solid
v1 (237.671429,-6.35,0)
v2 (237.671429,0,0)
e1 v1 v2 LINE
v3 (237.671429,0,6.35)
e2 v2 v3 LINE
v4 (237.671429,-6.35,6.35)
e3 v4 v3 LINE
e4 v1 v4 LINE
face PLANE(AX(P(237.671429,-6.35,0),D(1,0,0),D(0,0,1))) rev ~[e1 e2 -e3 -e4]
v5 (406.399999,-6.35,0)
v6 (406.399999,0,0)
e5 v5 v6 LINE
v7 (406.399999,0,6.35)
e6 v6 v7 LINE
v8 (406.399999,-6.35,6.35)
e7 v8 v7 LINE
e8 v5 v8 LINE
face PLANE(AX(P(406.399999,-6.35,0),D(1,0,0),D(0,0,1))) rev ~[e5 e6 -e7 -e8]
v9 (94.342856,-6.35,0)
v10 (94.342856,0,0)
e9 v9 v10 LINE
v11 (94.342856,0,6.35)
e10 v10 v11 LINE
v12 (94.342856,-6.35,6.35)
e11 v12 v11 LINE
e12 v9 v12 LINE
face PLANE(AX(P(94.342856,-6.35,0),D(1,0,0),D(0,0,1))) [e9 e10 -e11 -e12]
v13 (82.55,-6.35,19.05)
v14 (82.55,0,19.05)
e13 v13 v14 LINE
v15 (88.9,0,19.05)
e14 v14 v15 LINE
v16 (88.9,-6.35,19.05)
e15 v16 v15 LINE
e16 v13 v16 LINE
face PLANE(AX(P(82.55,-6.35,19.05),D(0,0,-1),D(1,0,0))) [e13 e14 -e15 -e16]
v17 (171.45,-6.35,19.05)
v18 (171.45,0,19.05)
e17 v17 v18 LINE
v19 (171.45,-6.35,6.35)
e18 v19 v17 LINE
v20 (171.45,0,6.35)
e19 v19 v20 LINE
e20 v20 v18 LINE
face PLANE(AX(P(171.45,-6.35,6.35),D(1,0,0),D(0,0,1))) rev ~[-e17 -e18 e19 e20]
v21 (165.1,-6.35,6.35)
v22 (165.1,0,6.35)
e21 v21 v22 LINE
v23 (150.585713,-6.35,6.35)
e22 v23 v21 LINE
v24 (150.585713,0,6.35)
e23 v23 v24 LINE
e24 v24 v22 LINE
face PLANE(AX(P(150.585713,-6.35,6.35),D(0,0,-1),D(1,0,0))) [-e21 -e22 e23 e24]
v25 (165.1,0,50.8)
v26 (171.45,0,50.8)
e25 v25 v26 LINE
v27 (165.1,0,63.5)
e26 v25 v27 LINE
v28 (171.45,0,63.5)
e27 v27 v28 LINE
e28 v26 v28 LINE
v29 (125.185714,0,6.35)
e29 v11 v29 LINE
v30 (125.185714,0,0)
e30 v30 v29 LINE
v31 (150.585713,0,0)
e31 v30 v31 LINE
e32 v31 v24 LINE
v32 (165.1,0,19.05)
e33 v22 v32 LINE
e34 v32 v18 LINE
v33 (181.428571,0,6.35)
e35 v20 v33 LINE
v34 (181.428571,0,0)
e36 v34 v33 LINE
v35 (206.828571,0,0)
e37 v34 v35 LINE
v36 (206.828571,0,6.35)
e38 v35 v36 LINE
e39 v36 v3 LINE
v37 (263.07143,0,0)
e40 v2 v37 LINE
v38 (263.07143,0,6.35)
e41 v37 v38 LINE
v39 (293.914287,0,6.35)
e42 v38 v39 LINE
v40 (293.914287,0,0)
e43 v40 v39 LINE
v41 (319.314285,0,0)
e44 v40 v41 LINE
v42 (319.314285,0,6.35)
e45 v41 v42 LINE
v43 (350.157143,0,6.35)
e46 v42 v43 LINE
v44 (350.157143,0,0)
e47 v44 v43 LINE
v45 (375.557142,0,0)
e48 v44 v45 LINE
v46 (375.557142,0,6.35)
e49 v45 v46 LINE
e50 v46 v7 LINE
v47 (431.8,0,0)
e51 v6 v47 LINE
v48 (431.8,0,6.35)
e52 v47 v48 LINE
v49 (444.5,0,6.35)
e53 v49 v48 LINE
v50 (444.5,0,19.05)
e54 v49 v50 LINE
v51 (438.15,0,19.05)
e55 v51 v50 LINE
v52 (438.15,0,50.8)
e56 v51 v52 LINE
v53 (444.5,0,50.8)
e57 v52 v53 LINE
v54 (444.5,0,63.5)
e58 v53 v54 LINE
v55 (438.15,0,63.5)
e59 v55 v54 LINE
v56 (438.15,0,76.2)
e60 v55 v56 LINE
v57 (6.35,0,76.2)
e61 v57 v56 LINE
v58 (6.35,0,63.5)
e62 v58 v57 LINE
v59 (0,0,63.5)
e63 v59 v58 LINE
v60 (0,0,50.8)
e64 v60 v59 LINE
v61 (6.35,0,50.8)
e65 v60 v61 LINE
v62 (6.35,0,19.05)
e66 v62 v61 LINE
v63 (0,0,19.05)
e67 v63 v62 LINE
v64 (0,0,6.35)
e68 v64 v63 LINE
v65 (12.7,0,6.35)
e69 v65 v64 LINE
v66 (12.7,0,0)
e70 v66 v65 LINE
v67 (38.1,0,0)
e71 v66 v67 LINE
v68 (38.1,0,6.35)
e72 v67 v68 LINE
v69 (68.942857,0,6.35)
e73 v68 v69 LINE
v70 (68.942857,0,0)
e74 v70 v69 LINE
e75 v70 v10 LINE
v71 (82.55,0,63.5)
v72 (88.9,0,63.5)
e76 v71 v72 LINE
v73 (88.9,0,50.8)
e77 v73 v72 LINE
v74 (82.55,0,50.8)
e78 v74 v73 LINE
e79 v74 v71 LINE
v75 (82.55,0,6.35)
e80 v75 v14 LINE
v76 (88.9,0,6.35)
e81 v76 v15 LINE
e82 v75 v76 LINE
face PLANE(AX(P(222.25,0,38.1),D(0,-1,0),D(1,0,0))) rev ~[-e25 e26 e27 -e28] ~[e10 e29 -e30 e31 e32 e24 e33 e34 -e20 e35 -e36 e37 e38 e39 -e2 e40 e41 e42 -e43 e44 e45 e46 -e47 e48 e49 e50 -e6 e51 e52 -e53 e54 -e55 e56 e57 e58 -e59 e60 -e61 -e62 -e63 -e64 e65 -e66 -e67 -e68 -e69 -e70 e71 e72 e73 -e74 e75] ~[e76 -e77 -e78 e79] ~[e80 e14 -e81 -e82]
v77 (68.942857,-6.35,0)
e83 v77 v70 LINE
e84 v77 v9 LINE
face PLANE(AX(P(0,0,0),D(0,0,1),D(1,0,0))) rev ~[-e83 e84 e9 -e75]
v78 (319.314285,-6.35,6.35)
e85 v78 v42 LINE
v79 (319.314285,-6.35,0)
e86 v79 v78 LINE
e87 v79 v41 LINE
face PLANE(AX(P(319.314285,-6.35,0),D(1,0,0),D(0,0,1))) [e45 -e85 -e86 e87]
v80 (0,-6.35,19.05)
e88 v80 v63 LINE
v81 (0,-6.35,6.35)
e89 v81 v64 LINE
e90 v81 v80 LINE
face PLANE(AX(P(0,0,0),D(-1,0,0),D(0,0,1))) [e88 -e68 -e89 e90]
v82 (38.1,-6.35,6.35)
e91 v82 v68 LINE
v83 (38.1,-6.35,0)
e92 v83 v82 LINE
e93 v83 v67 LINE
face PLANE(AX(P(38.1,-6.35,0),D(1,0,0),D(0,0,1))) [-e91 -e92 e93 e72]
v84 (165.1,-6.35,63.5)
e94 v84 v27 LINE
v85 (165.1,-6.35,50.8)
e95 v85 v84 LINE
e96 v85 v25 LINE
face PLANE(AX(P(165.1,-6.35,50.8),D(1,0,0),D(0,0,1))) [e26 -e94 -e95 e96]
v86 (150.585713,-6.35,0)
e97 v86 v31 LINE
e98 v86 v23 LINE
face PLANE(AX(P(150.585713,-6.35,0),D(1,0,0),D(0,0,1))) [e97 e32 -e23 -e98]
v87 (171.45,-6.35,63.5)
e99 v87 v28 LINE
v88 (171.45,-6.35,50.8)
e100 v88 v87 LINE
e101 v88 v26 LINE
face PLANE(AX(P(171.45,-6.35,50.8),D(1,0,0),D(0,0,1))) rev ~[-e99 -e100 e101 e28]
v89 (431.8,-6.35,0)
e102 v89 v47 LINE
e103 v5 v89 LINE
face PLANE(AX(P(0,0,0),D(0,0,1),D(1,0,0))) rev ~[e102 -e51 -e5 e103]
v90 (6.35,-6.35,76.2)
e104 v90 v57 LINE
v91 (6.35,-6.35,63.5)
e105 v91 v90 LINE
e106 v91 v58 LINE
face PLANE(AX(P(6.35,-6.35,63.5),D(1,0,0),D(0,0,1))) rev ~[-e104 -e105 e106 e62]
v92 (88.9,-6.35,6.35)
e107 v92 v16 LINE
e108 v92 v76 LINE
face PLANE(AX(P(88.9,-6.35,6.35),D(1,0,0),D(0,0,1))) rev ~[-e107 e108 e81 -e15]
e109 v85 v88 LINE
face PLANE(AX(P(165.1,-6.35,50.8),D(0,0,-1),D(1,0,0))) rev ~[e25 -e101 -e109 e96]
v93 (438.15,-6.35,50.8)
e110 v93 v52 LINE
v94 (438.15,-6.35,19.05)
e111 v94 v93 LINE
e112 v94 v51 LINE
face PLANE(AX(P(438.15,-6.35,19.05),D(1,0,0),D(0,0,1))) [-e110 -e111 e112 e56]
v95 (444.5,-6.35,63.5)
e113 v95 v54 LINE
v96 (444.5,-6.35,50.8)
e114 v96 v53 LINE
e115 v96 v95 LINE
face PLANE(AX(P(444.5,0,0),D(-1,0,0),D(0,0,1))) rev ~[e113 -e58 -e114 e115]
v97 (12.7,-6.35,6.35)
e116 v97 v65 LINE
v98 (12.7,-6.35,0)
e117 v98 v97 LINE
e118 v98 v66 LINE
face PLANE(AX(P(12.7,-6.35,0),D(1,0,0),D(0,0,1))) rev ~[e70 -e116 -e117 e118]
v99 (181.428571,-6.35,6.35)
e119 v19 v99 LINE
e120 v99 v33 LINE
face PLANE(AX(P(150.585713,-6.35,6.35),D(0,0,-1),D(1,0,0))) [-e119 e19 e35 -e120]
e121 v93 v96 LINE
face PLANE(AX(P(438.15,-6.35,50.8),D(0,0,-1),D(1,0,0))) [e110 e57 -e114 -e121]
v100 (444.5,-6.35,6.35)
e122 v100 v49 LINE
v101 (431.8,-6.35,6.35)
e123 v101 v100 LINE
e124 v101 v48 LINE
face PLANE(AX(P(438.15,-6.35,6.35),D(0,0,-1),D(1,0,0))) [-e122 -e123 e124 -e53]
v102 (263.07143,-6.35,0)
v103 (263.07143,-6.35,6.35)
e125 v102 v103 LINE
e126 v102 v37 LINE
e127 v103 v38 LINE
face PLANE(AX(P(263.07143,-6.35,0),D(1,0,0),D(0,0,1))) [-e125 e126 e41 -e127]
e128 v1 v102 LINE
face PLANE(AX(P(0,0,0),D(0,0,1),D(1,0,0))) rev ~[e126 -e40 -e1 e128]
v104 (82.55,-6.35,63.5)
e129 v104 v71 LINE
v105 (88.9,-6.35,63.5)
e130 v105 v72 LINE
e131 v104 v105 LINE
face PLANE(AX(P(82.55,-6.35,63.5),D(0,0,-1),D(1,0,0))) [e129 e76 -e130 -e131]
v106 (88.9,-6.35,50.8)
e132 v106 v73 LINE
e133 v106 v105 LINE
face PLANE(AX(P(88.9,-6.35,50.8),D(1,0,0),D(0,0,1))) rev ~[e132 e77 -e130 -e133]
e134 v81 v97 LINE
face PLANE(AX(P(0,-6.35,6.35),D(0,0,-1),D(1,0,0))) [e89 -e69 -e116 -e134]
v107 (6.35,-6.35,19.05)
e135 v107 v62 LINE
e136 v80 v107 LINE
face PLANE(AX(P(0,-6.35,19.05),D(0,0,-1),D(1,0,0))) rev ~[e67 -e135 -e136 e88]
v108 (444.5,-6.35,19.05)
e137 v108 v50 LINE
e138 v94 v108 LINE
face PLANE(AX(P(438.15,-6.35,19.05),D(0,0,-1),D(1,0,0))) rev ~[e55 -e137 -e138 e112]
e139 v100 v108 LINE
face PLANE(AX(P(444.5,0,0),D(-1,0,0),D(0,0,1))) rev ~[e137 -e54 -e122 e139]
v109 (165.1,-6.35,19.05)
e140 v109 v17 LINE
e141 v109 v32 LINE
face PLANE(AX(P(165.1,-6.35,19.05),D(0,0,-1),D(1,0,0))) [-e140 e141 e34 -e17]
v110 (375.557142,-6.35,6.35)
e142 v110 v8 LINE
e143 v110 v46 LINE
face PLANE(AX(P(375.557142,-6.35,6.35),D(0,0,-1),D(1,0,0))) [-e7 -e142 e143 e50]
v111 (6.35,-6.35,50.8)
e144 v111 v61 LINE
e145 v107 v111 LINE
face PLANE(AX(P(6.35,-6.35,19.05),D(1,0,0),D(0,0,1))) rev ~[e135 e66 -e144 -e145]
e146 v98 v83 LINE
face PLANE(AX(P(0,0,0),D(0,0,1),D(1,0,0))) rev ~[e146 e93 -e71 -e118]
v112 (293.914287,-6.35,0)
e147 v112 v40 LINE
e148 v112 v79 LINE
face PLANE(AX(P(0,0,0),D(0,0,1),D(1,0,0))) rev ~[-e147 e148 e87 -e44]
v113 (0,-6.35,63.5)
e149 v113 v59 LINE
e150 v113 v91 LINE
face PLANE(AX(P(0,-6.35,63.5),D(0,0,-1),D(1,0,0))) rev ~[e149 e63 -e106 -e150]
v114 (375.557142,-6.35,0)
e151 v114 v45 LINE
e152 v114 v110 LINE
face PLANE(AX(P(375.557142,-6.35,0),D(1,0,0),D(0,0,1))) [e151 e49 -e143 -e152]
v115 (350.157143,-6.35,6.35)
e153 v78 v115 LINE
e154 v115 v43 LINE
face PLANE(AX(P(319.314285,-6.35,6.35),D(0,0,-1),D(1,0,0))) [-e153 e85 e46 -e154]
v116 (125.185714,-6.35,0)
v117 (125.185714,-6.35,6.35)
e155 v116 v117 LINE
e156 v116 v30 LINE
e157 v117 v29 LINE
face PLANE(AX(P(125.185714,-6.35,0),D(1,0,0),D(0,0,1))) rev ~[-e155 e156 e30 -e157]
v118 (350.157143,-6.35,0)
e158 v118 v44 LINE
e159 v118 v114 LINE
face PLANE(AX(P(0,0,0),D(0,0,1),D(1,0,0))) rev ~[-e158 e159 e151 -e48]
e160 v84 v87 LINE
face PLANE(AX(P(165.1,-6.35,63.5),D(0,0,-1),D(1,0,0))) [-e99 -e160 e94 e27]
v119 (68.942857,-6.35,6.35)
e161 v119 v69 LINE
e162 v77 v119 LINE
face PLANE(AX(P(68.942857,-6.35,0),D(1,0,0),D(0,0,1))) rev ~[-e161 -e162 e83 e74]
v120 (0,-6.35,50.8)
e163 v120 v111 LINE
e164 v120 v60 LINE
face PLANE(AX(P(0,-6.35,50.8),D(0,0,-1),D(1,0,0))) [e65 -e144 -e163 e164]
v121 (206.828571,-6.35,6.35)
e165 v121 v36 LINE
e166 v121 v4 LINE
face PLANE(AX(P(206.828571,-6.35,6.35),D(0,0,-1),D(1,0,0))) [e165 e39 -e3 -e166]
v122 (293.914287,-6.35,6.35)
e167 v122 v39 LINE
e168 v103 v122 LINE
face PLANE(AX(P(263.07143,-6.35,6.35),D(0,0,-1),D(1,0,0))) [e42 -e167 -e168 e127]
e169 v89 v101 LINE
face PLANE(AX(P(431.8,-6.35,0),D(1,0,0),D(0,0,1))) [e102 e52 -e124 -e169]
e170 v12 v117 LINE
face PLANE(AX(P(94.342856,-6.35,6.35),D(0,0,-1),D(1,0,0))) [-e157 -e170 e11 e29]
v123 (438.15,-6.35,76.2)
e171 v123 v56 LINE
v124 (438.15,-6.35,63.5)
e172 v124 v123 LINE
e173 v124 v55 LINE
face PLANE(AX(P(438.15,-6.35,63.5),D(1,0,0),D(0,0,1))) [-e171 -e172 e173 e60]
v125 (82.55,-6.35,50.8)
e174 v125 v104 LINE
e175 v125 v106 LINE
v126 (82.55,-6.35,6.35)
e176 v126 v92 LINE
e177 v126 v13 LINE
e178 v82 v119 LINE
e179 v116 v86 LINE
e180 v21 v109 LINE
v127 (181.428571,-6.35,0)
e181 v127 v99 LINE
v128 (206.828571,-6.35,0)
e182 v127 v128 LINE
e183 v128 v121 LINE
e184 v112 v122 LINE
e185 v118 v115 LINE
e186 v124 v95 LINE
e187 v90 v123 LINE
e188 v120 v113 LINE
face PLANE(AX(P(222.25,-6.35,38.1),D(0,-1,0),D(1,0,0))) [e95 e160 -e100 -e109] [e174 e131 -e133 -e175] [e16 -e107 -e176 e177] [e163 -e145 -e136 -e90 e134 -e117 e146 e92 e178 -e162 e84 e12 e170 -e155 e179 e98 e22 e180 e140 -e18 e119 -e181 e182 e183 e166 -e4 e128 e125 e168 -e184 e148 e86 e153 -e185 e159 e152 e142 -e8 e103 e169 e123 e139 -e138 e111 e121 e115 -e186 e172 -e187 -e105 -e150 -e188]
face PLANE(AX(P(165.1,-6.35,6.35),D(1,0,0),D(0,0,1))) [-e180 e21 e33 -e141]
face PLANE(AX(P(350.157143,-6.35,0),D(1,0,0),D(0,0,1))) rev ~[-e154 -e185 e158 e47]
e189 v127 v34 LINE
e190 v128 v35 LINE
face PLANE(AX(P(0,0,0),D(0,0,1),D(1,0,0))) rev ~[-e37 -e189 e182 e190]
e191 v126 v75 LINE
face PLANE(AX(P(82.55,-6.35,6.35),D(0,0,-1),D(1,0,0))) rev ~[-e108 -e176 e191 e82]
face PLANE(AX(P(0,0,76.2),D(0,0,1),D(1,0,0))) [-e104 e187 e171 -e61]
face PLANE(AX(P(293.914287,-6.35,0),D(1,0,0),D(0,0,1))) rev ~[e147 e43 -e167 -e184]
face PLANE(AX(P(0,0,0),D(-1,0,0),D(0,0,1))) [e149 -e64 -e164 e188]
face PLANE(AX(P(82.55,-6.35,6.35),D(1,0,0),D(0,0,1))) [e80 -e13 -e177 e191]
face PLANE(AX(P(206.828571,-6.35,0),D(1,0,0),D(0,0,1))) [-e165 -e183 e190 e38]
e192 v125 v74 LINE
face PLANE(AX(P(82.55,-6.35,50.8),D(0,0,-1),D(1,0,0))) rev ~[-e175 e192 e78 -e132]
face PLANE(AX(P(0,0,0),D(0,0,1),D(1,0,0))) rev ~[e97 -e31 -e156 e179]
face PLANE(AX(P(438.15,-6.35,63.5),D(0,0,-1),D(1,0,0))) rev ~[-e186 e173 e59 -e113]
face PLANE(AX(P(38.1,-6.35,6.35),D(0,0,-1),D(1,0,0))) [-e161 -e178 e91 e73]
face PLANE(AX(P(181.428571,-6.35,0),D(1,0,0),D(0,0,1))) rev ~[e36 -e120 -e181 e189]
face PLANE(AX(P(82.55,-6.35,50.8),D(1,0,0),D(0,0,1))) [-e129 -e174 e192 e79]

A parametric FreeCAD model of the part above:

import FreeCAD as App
import Part
import Sketcher

V = App.Vector
Q = App.Units.Quantity

doc = App.newDocument("Part")
body = doc.addObject("PartDesign::Body", "Body")

# Sketch on XZ plane
sketch1 = doc.addObject("Sketcher::SketchObject", "Sketch")
body.addObject(sketch1)
sketch1.AttachmentSupport = (doc.XZ_Plane, [""])
sketch1.MapMode = "FlatFace"
sketch1.addGeometry(Part.LineSegment(V(0, 76.2, 0), V(0, 0, 0)), False)
sketch1.addGeometry(Part.LineSegment(V(0, 0, 0), V(444.5, 0, 0)), False)
sketch1.addGeometry(Part.LineSegment(V(444.5, 0, 0), V(444.5, 76.2, 0)), False)
sketch1.addGeometry(Part.LineSegment(V(444.5, 76.2, 0), V(0, 76.2, 0)), False)
sketch1.addConstraint(Sketcher.Constraint("Coincident", 0, 2, 1, 1))
sketch1.addConstraint(Sketcher.Constraint("Coincident", 1, 2, 2, 1))
sketch1.addConstraint(Sketcher.Constraint("Coincident", 2, 2, 3, 1))
sketch1.addConstraint(Sketcher.Constraint("Coincident", 3, 2, 0, 1))
sketch1.addConstraint(Sketcher.Constraint("Vertical", 0))
sketch1.addConstraint(Sketcher.Constraint("Horizontal", 1))
sketch1.addConstraint(Sketcher.Constraint("Vertical", 2))
sketch1.addConstraint(Sketcher.Constraint("Horizontal", 3))
sketch1.addConstraint(Sketcher.Constraint("Coincident", 0, 2, -1, 1))
sketch1.addConstraint(Sketcher.Constraint("DistanceY", 0, 2, 0, 1, Q("3 in")))
sketch1.addConstraint(Sketcher.Constraint("DistanceX", 1, 1, 1, 2, Q("17.5 in")))
pad1 = doc.addObject("PartDesign::Pad", "Pad")
body.addObject(pad1)
pad1.Profile = sketch1
pad1.Length = Q("0.25 in")

# Sketch on XZ plane
sketch2 = doc.addObject("Sketcher::SketchObject", "Sketch001")
body.addObject(sketch2)
sketch2.AttachmentSupport = (doc.XZ_Plane, [""])
sketch2.MapMode = "FlatFace"
sketch2.AttachmentOffset = App.Placement(V(0, 0, 0.25 * 25.4), App.Rotation())
sketch2.addGeometry(Part.LineSegment(V(0, 6.35, 0), V(0, 0, 0)), False)
sketch2.addGeometry(Part.LineSegment(V(0, 0, 0), V(6.35, 0, 0)), False)
sketch2.addGeometry(Part.LineSegment(V(6.35, 0, 0), V(6.35, 6.35, 0)), False)
sketch2.addGeometry(Part.LineSegment(V(6.35, 6.35, 0), V(0, 6.35, 0)), False)
sketch2.addGeometry(Part.LineSegment(V(0, 76.2, 0), V(0, 63.5, 0)), False)
sketch2.addGeometry(Part.LineSegment(V(0, 63.5, 0), V(6.35, 63.5, 0)), False)
sketch2.addGeometry(Part.LineSegment(V(6.35, 63.5, 0), V(6.35, 76.2, 0)), False)
sketch2.addGeometry(Part.LineSegment(V(6.35, 76.2, 0), V(0, 76.2, 0)), False)
sketch2.addGeometry(Part.LineSegment(V(0, 50.8, 0), V(0, 19.05, 0)), False)
sketch2.addGeometry(Part.LineSegment(V(0, 19.05, 0), V(6.35, 19.05, 0)), False)
sketch2.addGeometry(Part.LineSegment(V(6.35, 19.05, 0), V(6.35, 50.8, 0)), False)
sketch2.addGeometry(Part.LineSegment(V(6.35, 50.8, 0), V(0, 50.8, 0)), False)
sketch2.addGeometry(Part.LineSegment(V(438.15, 6.35, 0), V(438.15, 0, 0)), False)
sketch2.addGeometry(Part.LineSegment(V(438.15, 0, 0), V(444.5, 0, 0)), False)
sketch2.addGeometry(Part.LineSegment(V(444.5, 0, 0), V(444.5, 6.35, 0)), False)
sketch2.addGeometry(Part.LineSegment(V(444.5, 6.35, 0), V(438.15, 6.35, 0)), False)
sketch2.addGeometry(Part.LineSegment(V(438.15, 50.8, 0), V(438.15, 19.05, 0)), False)
sketch2.addGeometry(Part.LineSegment(V(438.15, 19.05, 0), V(444.5, 19.05, 0)), False)
sketch2.addGeometry(Part.LineSegment(V(444.5, 19.05, 0), V(444.5, 50.8, 0)), False)
sketch2.addGeometry(Part.LineSegment(V(444.5, 50.8, 0), V(438.15, 50.8, 0)), False)
sketch2.addGeometry(Part.LineSegment(V(438.15, 76.2, 0), V(438.15, 63.5, 0)), False)
sketch2.addGeometry(Part.LineSegment(V(438.15, 63.5, 0), V(444.5, 63.5, 0)), False)
sketch2.addGeometry(Part.LineSegment(V(444.5, 63.5, 0), V(444.5, 76.2, 0)), False)
sketch2.addGeometry(Part.LineSegment(V(444.5, 76.2, 0), V(438.15, 76.2, 0)), False)
sketch2.addConstraint(Sketcher.Constraint("Coincident", 0, 2, 1, 1))
sketch2.addConstraint(Sketcher.Constraint("Coincident", 1, 2, 2, 1))
sketch2.addConstraint(Sketcher.Constraint("Coincident", 2, 2, 3, 1))
sketch2.addConstraint(Sketcher.Constraint("Coincident", 3, 2, 0, 1))
sketch2.addConstraint(Sketcher.Constraint("Coincident", 4, 2, 5, 1))
sketch2.addConstraint(Sketcher.Constraint("Coincident", 5, 2, 6, 1))
sketch2.addConstraint(Sketcher.Constraint("Coincident", 6, 2, 7, 1))
sketch2.addConstraint(Sketcher.Constraint("Coincident", 7, 2, 4, 1))
sketch2.addConstraint(Sketcher.Constraint("Coincident", 8, 2, 9, 1))
sketch2.addConstraint(Sketcher.Constraint("Coincident", 9, 2, 10, 1))
sketch2.addConstraint(Sketcher.Constraint("Coincident", 10, 2, 11, 1))
sketch2.addConstraint(Sketcher.Constraint("Coincident", 11, 2, 8, 1))
sketch2.addConstraint(Sketcher.Constraint("Coincident", 12, 2, 13, 1))
sketch2.addConstraint(Sketcher.Constraint("Coincident", 13, 2, 14, 1))
sketch2.addConstraint(Sketcher.Constraint("Coincident", 14, 2, 15, 1))
sketch2.addConstraint(Sketcher.Constraint("Coincident", 15, 2, 12, 1))
sketch2.addConstraint(Sketcher.Constraint("Coincident", 16, 2, 17, 1))
sketch2.addConstraint(Sketcher.Constraint("Coincident", 17, 2, 18, 1))
sketch2.addConstraint(Sketcher.Constraint("Coincident", 18, 2, 19, 1))
sketch2.addConstraint(Sketcher.Constraint("Coincident", 19, 2, 16, 1))
sketch2.addConstraint(Sketcher.Constraint("Coincident", 20, 2, 21, 1))
sketch2.addConstraint(Sketcher.Constraint("Coincident", 21, 2, 22, 1))
sketch2.addConstraint(Sketcher.Constraint("Coincident", 22, 2, 23, 1))
sketch2.addConstraint(Sketcher.Constraint("Coincident", 23, 2, 20, 1))
sketch2.addConstraint(Sketcher.Constraint("Vertical", 0))
sketch2.addConstraint(Sketcher.Constraint("Horizontal", 1))
sketch2.addConstraint(Sketcher.Constraint("Vertical", 2))
sketch2.addConstraint(Sketcher.Constraint("Horizontal", 3))
sketch2.addConstraint(Sketcher.Constraint("Vertical", 4))
sketch2.addConstraint(Sketcher.Constraint("Horizontal", 5))
sketch2.addConstraint(Sketcher.Constraint("Vertical", 6))
sketch2.addConstraint(Sketcher.Constraint("Horizontal", 7))
sketch2.addConstraint(Sketcher.Constraint("Vertical", 8))
sketch2.addConstraint(Sketcher.Constraint("Horizontal", 9))
sketch2.addConstraint(Sketcher.Constraint("Vertical", 10))
sketch2.addConstraint(Sketcher.Constraint("Horizontal", 11))
sketch2.addConstraint(Sketcher.Constraint("Vertical", 12))
sketch2.addConstraint(Sketcher.Constraint("Horizontal", 13))
sketch2.addConstraint(Sketcher.Constraint("Vertical", 14))
sketch2.addConstraint(Sketcher.Constraint("Horizontal", 15))
sketch2.addConstraint(Sketcher.Constraint("Vertical", 16))
sketch2.addConstraint(Sketcher.Constraint("Horizontal", 17))
sketch2.addConstraint(Sketcher.Constraint("Vertical", 18))
sketch2.addConstraint(Sketcher.Constraint("Horizontal", 19))
sketch2.addConstraint(Sketcher.Constraint("Vertical", 20))
sketch2.addConstraint(Sketcher.Constraint("Horizontal", 21))
sketch2.addConstraint(Sketcher.Constraint("Vertical", 22))
sketch2.addConstraint(Sketcher.Constraint("Horizontal", 23))
sketch2.addConstraint(Sketcher.Constraint("Coincident", 0, 2, -1, 1))
sketch2.addConstraint(Sketcher.Constraint("PointOnObject", 4, 2, -2))
sketch2.addConstraint(Sketcher.Constraint("PointOnObject", 8, 2, -2))
sketch2.addConstraint(Sketcher.Constraint("PointOnObject", 12, 2, -1))
sketch2.addConstraint(Sketcher.Constraint("Horizontal", 3, 2, 14, 2))
sketch2.addConstraint(Sketcher.Constraint("Horizontal", 9, 2, 16, 2))
sketch2.addConstraint(Sketcher.Constraint("Horizontal", 11, 2, 18, 2))
sketch2.addConstraint(Sketcher.Constraint("Horizontal", 5, 2, 20, 2))
sketch2.addConstraint(Sketcher.Constraint("Horizontal", 7, 2, 22, 2))
sketch2.addConstraint(Sketcher.Constraint("Vertical", 2, 2, 5, 2))
sketch2.addConstraint(Sketcher.Constraint("Vertical", 6, 2, 9, 2))
sketch2.addConstraint(Sketcher.Constraint("Vertical", 15, 2, 16, 2))
sketch2.addConstraint(Sketcher.Constraint("Vertical", 14, 2, 17, 2))
sketch2.addConstraint(Sketcher.Constraint("Vertical", 19, 2, 20, 2))
sketch2.addConstraint(Sketcher.Constraint("Vertical", 18, 2, 21, 2))
sketch2.addConstraint(Sketcher.Constraint("Equal", 11, 13))
sketch2.addConstraint(Sketcher.Constraint("Equal", 23, 0))
sketch2.addConstraint(Sketcher.Constraint("DistanceY", 4, 2, 4, 1, Q("0.5 in")))
sketch2.addConstraint(Sketcher.Constraint("DistanceY", -1, 1, 6, 2, Q("3 in")))
sketch2.addConstraint(Sketcher.Constraint("DistanceY", -1, 1, 10, 2, Q("2 in")))
sketch2.addConstraint(Sketcher.Constraint("DistanceX", 1, 2, 12, 2, Q("17 in")))
sketch2.addConstraint(Sketcher.Constraint("DistanceX", 1, 1, 1, 2, Q("0.25 in")))
sketch2.addConstraint(Sketcher.Constraint("DistanceY", 8, 2, 8, 1, Q("1.25 in")))
pocket1 = doc.addObject("PartDesign::Pocket", "Pocket")
body.addObject(pocket1)
pocket1.Profile = sketch2
pocket1.Type = "ThroughAll"

# Sketch on XZ plane
sketch3 = doc.addObject("Sketcher::SketchObject", "Sketch002")
body.addObject(sketch3)
sketch3.AttachmentSupport = (doc.XZ_Plane, [""])
sketch3.MapMode = "FlatFace"
sketch3.AttachmentOffset = App.Placement(V(0, 0, 0.25 * 25.4), App.Rotation())
sketch3.addGeometry(Part.LineSegment(V(38.1, 6.35, 0), V(38.1, 0, 0)), False)
sketch3.addGeometry(Part.LineSegment(V(38.1, 0, 0), V(68.942857, 0, 0)), False)
sketch3.addGeometry(Part.LineSegment(V(68.942857, 0, 0), V(68.942857, 6.35, 0)), False)
sketch3.addGeometry(Part.LineSegment(V(68.942857, 6.35, 0), V(38.1, 6.35, 0)), False)
sketch3.addGeometry(Part.LineSegment(V(94.342856, 6.35, 0), V(94.342856, 0, 0)), False)
sketch3.addGeometry(Part.LineSegment(V(94.342856, 0, 0), V(125.185714, 0, 0)), False)
sketch3.addGeometry(Part.LineSegment(V(125.185714, 0, 0), V(125.185714, 6.35, 0)), False)
sketch3.addGeometry(Part.LineSegment(V(125.185714, 6.35, 0), V(94.342856, 6.35, 0)), False)
sketch3.addGeometry(Part.LineSegment(V(150.585713, 6.35, 0), V(150.585713, 0, 0)), False)
sketch3.addGeometry(Part.LineSegment(V(150.585713, 0, 0), V(181.428571, 0, 0)), False)
sketch3.addGeometry(Part.LineSegment(V(181.428571, 0, 0), V(181.428571, 6.35, 0)), False)
sketch3.addGeometry(Part.LineSegment(V(181.428571, 6.35, 0), V(150.585713, 6.35, 0)), False)
sketch3.addGeometry(Part.LineSegment(V(206.828571, 6.35, 0), V(206.828571, 0, 0)), False)
sketch3.addGeometry(Part.LineSegment(V(206.828571, 0, 0), V(237.671429, 0, 0)), False)
sketch3.addGeometry(Part.LineSegment(V(237.671429, 0, 0), V(237.671429, 6.35, 0)), False)
sketch3.addGeometry(Part.LineSegment(V(237.671429, 6.35, 0), V(206.828571, 6.35, 0)), False)
sketch3.addGeometry(Part.LineSegment(V(263.07143, 6.35, 0), V(263.07143, 0, 0)), False)
sketch3.addGeometry(Part.LineSegment(V(263.07143, 0, 0), V(293.914287, 0, 0)), False)
sketch3.addGeometry(Part.LineSegment(V(293.914287, 0, 0), V(293.914287, 6.35, 0)), False)
sketch3.addGeometry(Part.LineSegment(V(293.914287, 6.35, 0), V(263.07143, 6.35, 0)), False)
sketch3.addGeometry(Part.LineSegment(V(319.314285, 6.35, 0), V(319.314285, 0, 0)), False)
sketch3.addGeometry(Part.LineSegment(V(319.314285, 0, 0), V(350.157143, 0, 0)), False)
sketch3.addGeometry(Part.LineSegment(V(350.157143, 0, 0), V(350.157143, 6.35, 0)), False)
sketch3.addGeometry(Part.LineSegment(V(350.157143, 6.35, 0), V(319.314285, 6.35, 0)), False)
sketch3.addGeometry(Part.LineSegment(V(375.557142, 6.35, 0), V(375.557142, 0, 0)), False)
sketch3.addGeometry(Part.LineSegment(V(375.557142, 0, 0), V(406.399999, 0, 0)), False)
sketch3.addGeometry(Part.LineSegment(V(406.399999, 0, 0), V(406.399999, 6.35, 0)), False)
sketch3.addGeometry(Part.LineSegment(V(406.399999, 6.35, 0), V(375.557142, 6.35, 0)), False)
sketch3.addGeometry(Part.LineSegment(V(6.35, 6.35, 0), V(6.35, 0, 0)), False)
sketch3.addGeometry(Part.LineSegment(V(6.35, 0, 0), V(12.7, 0, 0)), False)
sketch3.addGeometry(Part.LineSegment(V(12.7, 0, 0), V(12.7, 6.35, 0)), False)
sketch3.addGeometry(Part.LineSegment(V(12.7, 6.35, 0), V(6.35, 6.35, 0)), False)
sketch3.addGeometry(Part.LineSegment(V(431.8, 6.35, 0), V(431.8, 0, 0)), False)
sketch3.addGeometry(Part.LineSegment(V(431.8, 0, 0), V(438.15, 0, 0)), False)
sketch3.addGeometry(Part.LineSegment(V(438.15, 0, 0), V(438.15, 6.35, 0)), False)
sketch3.addGeometry(Part.LineSegment(V(438.15, 6.35, 0), V(431.8, 6.35, 0)), False)
sketch3.addConstraint(Sketcher.Constraint("Coincident", 0, 2, 1, 1))
sketch3.addConstraint(Sketcher.Constraint("Coincident", 1, 2, 2, 1))
sketch3.addConstraint(Sketcher.Constraint("Coincident", 2, 2, 3, 1))
sketch3.addConstraint(Sketcher.Constraint("Coincident", 3, 2, 0, 1))
sketch3.addConstraint(Sketcher.Constraint("Coincident", 4, 2, 5, 1))
sketch3.addConstraint(Sketcher.Constraint("Coincident", 5, 2, 6, 1))
sketch3.addConstraint(Sketcher.Constraint("Coincident", 6, 2, 7, 1))
sketch3.addConstraint(Sketcher.Constraint("Coincident", 7, 2, 4, 1))
sketch3.addConstraint(Sketcher.Constraint("Coincident", 8, 2, 9, 1))
sketch3.addConstraint(Sketcher.Constraint("Coincident", 9, 2, 10, 1))
sketch3.addConstraint(Sketcher.Constraint("Coincident", 10, 2, 11, 1))
sketch3.addConstraint(Sketcher.Constraint("Coincident", 11, 2, 8, 1))
sketch3.addConstraint(Sketcher.Constraint("Coincident", 12, 2, 13, 1))
sketch3.addConstraint(Sketcher.Constraint("Coincident", 13, 2, 14, 1))
sketch3.addConstraint(Sketcher.Constraint("Coincident", 14, 2, 15, 1))
sketch3.addConstraint(Sketcher.Constraint("Coincident", 15, 2, 12, 1))
sketch3.addConstraint(Sketcher.Constraint("Coincident", 16, 2, 17, 1))
sketch3.addConstraint(Sketcher.Constraint("Coincident", 17, 2, 18, 1))
sketch3.addConstraint(Sketcher.Constraint("Coincident", 18, 2, 19, 1))
sketch3.addConstraint(Sketcher.Constraint("Coincident", 19, 2, 16, 1))
sketch3.addConstraint(Sketcher.Constraint("Coincident", 20, 2, 21, 1))
sketch3.addConstraint(Sketcher.Constraint("Coincident", 21, 2, 22, 1))
sketch3.addConstraint(Sketcher.Constraint("Coincident", 22, 2, 23, 1))
sketch3.addConstraint(Sketcher.Constraint("Coincident", 23, 2, 20, 1))
sketch3.addConstraint(Sketcher.Constraint("Coincident", 24, 2, 25, 1))
sketch3.addConstraint(Sketcher.Constraint("Coincident", 25, 2, 26, 1))
sketch3.addConstraint(Sketcher.Constraint("Coincident", 26, 2, 27, 1))
sketch3.addConstraint(Sketcher.Constraint("Coincident", 27, 2, 24, 1))
sketch3.addConstraint(Sketcher.Constraint("Coincident", 28, 2, 29, 1))
sketch3.addConstraint(Sketcher.Constraint("Coincident", 29, 2, 30, 1))
sketch3.addConstraint(Sketcher.Constraint("Coincident", 30, 2, 31, 1))
sketch3.addConstraint(Sketcher.Constraint("Coincident", 31, 2, 28, 1))
sketch3.addConstraint(Sketcher.Constraint("Coincident", 32, 2, 33, 1))
sketch3.addConstraint(Sketcher.Constraint("Coincident", 33, 2, 34, 1))
sketch3.addConstraint(Sketcher.Constraint("Coincident", 34, 2, 35, 1))
sketch3.addConstraint(Sketcher.Constraint("Coincident", 35, 2, 32, 1))
sketch3.addConstraint(Sketcher.Constraint("Vertical", 0))
sketch3.addConstraint(Sketcher.Constraint("Horizontal", 1))
sketch3.addConstraint(Sketcher.Constraint("Vertical", 2))
sketch3.addConstraint(Sketcher.Constraint("Horizontal", 3))
sketch3.addConstraint(Sketcher.Constraint("Vertical", 4))
sketch3.addConstraint(Sketcher.Constraint("Horizontal", 5))
sketch3.addConstraint(Sketcher.Constraint("Vertical", 6))
sketch3.addConstraint(Sketcher.Constraint("Horizontal", 7))
sketch3.addConstraint(Sketcher.Constraint("Vertical", 8))
sketch3.addConstraint(Sketcher.Constraint("Horizontal", 9))
sketch3.addConstraint(Sketcher.Constraint("Vertical", 10))
sketch3.addConstraint(Sketcher.Constraint("Horizontal", 11))
sketch3.addConstraint(Sketcher.Constraint("Vertical", 12))
sketch3.addConstraint(Sketcher.Constraint("Horizontal", 13))
sketch3.addConstraint(Sketcher.Constraint("Vertical", 14))
sketch3.addConstraint(Sketcher.Constraint("Horizontal", 15))
sketch3.addConstraint(Sketcher.Constraint("Vertical", 16))
sketch3.addConstraint(Sketcher.Constraint("Horizontal", 17))
sketch3.addConstraint(Sketcher.Constraint("Vertical", 18))
sketch3.addConstraint(Sketcher.Constraint("Horizontal", 19))
sketch3.addConstraint(Sketcher.Constraint("Vertical", 20))
sketch3.addConstraint(Sketcher.Constraint("Horizontal", 21))
sketch3.addConstraint(Sketcher.Constraint("Vertical", 22))
sketch3.addConstraint(Sketcher.Constraint("Horizontal", 23))
sketch3.addConstraint(Sketcher.Constraint("Vertical", 24))
sketch3.addConstraint(Sketcher.Constraint("Horizontal", 25))
sketch3.addConstraint(Sketcher.Constraint("Vertical", 26))
sketch3.addConstraint(Sketcher.Constraint("Horizontal", 27))
sketch3.addConstraint(Sketcher.Constraint("Vertical", 28))
sketch3.addConstraint(Sketcher.Constraint("Horizontal", 29))
sketch3.addConstraint(Sketcher.Constraint("Vertical", 30))
sketch3.addConstraint(Sketcher.Constraint("Horizontal", 31))
sketch3.addConstraint(Sketcher.Constraint("Vertical", 32))
sketch3.addConstraint(Sketcher.Constraint("Horizontal", 33))
sketch3.addConstraint(Sketcher.Constraint("Vertical", 34))
sketch3.addConstraint(Sketcher.Constraint("Horizontal", 35))
sketch3.addConstraint(Sketcher.Constraint("PointOnObject", 0, 2, -1))
sketch3.addConstraint(Sketcher.Constraint("PointOnObject", 4, 2, -1))
sketch3.addConstraint(Sketcher.Constraint("PointOnObject", 8, 2, -1))
sketch3.addConstraint(Sketcher.Constraint("PointOnObject", 12, 2, -1))
sketch3.addConstraint(Sketcher.Constraint("PointOnObject", 16, 2, -1))
sketch3.addConstraint(Sketcher.Constraint("PointOnObject", 20, 2, -1))
sketch3.addConstraint(Sketcher.Constraint("PointOnObject", 24, 2, -1))
sketch3.addConstraint(Sketcher.Constraint("PointOnObject", 28, 2, -1))
sketch3.addConstraint(Sketcher.Constraint("PointOnObject", 32, 2, -1))
sketch3.addConstraint(Sketcher.Constraint("Horizontal", 3, 2, 6, 2))
sketch3.addConstraint(Sketcher.Constraint("Horizontal", 7, 2, 10, 2))
sketch3.addConstraint(Sketcher.Constraint("Horizontal", 11, 2, 14, 2))
sketch3.addConstraint(Sketcher.Constraint("Horizontal", 15, 2, 18, 2))
sketch3.addConstraint(Sketcher.Constraint("Horizontal", 19, 2, 22, 2))
sketch3.addConstraint(Sketcher.Constraint("Horizontal", 23, 2, 26, 2))
sketch3.addConstraint(Sketcher.Constraint("Horizontal", 27, 2, 30, 2))
sketch3.addConstraint(Sketcher.Constraint("Horizontal", 31, 2, 34, 2))
sketch3.addConstraint(Sketcher.Constraint("Equal", 3, 5))
sketch3.addConstraint(Sketcher.Constraint("Equal", 7, 9))
sketch3.addConstraint(Sketcher.Constraint("Equal", 11, 13))
sketch3.addConstraint(Sketcher.Constraint("Equal", 15, 17))
sketch3.addConstraint(Sketcher.Constraint("Equal", 19, 21))
sketch3.addConstraint(Sketcher.Constraint("Equal", 23, 25))
sketch3.addConstraint(Sketcher.Constraint("Equal", 31, 33))
sketch3.addConstraint(Sketcher.Constraint("Equal", 35, 0))
sketch3.addConstraint(Sketcher.Constraint("DistanceX", -1, 1, 25, 2, Q("16 in")))
sketch3.addConstraint(Sketcher.Constraint("DistanceX", -1, 1, 32, 2, Q("17 in")))
sketch3.addConstraint(Sketcher.Constraint("DistanceX", 1, 2, 4, 2, Q("1 in")))
sketch3.addConstraint(Sketcher.Constraint("DistanceX", 5, 2, 8, 2, Q("1 in")))
sketch3.addConstraint(Sketcher.Constraint("DistanceX", 9, 2, 12, 2, Q("1 in")))
sketch3.addConstraint(Sketcher.Constraint("DistanceX", 13, 2, 16, 2, Q("1 in")))
sketch3.addConstraint(Sketcher.Constraint("DistanceX", 17, 2, 20, 2, Q("1 in")))
sketch3.addConstraint(Sketcher.Constraint("DistanceX", 21, 2, 24, 2, Q("1 in")))
sketch3.addConstraint(Sketcher.Constraint("DistanceX", 29, 2, 0, 2, Q("1 in")))
sketch3.addConstraint(Sketcher.Constraint("DistanceX", 29, 1, 29, 2, Q("0.25 in")))
sketch3.addConstraint(Sketcher.Constraint("DistanceX", -1, 1, 0, 2, Q("1.5 in")))
pocket2 = doc.addObject("PartDesign::Pocket", "Pocket001")
body.addObject(pocket2)
pocket2.Profile = sketch3
pocket2.Type = "ThroughAll"

# Sketch on XZ plane
sketch4 = doc.addObject("Sketcher::SketchObject", "Sketch003")
body.addObject(sketch4)
sketch4.AttachmentSupport = (doc.XZ_Plane, [""])
sketch4.MapMode = "FlatFace"
sketch4.AttachmentOffset = App.Placement(V(0, 0, 0.25 * 25.4), App.Rotation())
sketch4.addGeometry(Part.LineSegment(V(82.55, 19.05, 0), V(82.55, 6.35, 0)), False)
sketch4.addGeometry(Part.LineSegment(V(82.55, 6.35, 0), V(88.9, 6.35, 0)), False)
sketch4.addGeometry(Part.LineSegment(V(88.9, 6.35, 0), V(88.9, 19.05, 0)), False)
sketch4.addGeometry(Part.LineSegment(V(88.9, 19.05, 0), V(82.55, 19.05, 0)), False)
sketch4.addGeometry(Part.LineSegment(V(82.55, 63.5, 0), V(82.55, 50.8, 0)), False)
sketch4.addGeometry(Part.LineSegment(V(82.55, 50.8, 0), V(88.9, 50.8, 0)), False)
sketch4.addGeometry(Part.LineSegment(V(88.9, 50.8, 0), V(88.9, 63.5, 0)), False)
sketch4.addGeometry(Part.LineSegment(V(88.9, 63.5, 0), V(82.55, 63.5, 0)), False)
sketch4.addGeometry(Part.LineSegment(V(165.1, 19.05, 0), V(165.1, 6.35, 0)), False)
sketch4.addGeometry(Part.LineSegment(V(165.1, 6.35, 0), V(171.45, 6.35, 0)), False)
sketch4.addGeometry(Part.LineSegment(V(171.45, 6.35, 0), V(171.45, 19.05, 0)), False)
sketch4.addGeometry(Part.LineSegment(V(171.45, 19.05, 0), V(165.1, 19.05, 0)), False)
sketch4.addGeometry(Part.LineSegment(V(165.1, 63.5, 0), V(165.1, 50.8, 0)), False)
sketch4.addGeometry(Part.LineSegment(V(165.1, 50.8, 0), V(171.45, 50.8, 0)), False)
sketch4.addGeometry(Part.LineSegment(V(171.45, 50.8, 0), V(171.45, 63.5, 0)), False)
sketch4.addGeometry(Part.LineSegment(V(171.45, 63.5, 0), V(165.1, 63.5, 0)), False)
sketch4.addConstraint(Sketcher.Constraint("Coincident", 0, 2, 1, 1))
sketch4.addConstraint(Sketcher.Constraint("Coincident", 1, 2, 2, 1))
sketch4.addConstraint(Sketcher.Constraint("Coincident", 2, 2, 3, 1))
sketch4.addConstraint(Sketcher.Constraint("Coincident", 3, 2, 0, 1))
sketch4.addConstraint(Sketcher.Constraint("Coincident", 4, 2, 5, 1))
sketch4.addConstraint(Sketcher.Constraint("Coincident", 5, 2, 6, 1))
sketch4.addConstraint(Sketcher.Constraint("Coincident", 6, 2, 7, 1))
sketch4.addConstraint(Sketcher.Constraint("Coincident", 7, 2, 4, 1))
sketch4.addConstraint(Sketcher.Constraint("Coincident", 8, 2, 9, 1))
sketch4.addConstraint(Sketcher.Constraint("Coincident", 9, 2, 10, 1))
sketch4.addConstraint(Sketcher.Constraint("Coincident", 10, 2, 11, 1))
sketch4.addConstraint(Sketcher.Constraint("Coincident", 11, 2, 8, 1))
sketch4.addConstraint(Sketcher.Constraint("Coincident", 12, 2, 13, 1))
sketch4.addConstraint(Sketcher.Constraint("Coincident", 13, 2, 14, 1))
sketch4.addConstraint(Sketcher.Constraint("Coincident", 14, 2, 15, 1))
sketch4.addConstraint(Sketcher.Constraint("Coincident", 15, 2, 12, 1))
sketch4.addConstraint(Sketcher.Constraint("Vertical", 0))
sketch4.addConstraint(Sketcher.Constraint("Horizontal", 1))
sketch4.addConstraint(Sketcher.Constraint("Vertical", 2))
sketch4.addConstraint(Sketcher.Constraint("Horizontal", 3))
sketch4.addConstraint(Sketcher.Constraint("Vertical", 4))
sketch4.addConstraint(Sketcher.Constraint("Horizontal", 5))
sketch4.addConstraint(Sketcher.Constraint("Vertical", 6))
sketch4.addConstraint(Sketcher.Constraint("Horizontal", 7))
sketch4.addConstraint(Sketcher.Constraint("Vertical", 8))
sketch4.addConstraint(Sketcher.Constraint("Horizontal", 9))
sketch4.addConstraint(Sketcher.Constraint("Vertical", 10))
sketch4.addConstraint(Sketcher.Constraint("Horizontal", 11))
sketch4.addConstraint(Sketcher.Constraint("Vertical", 12))
sketch4.addConstraint(Sketcher.Constraint("Horizontal", 13))
sketch4.addConstraint(Sketcher.Constraint("Vertical", 14))
sketch4.addConstraint(Sketcher.Constraint("Horizontal", 15))
sketch4.addConstraint(Sketcher.Constraint("Horizontal", 1, 2, 8, 2))
sketch4.addConstraint(Sketcher.Constraint("Horizontal", 3, 2, 10, 2))
sketch4.addConstraint(Sketcher.Constraint("Horizontal", 5, 2, 12, 2))
sketch4.addConstraint(Sketcher.Constraint("Horizontal", 7, 2, 14, 2))
sketch4.addConstraint(Sketcher.Constraint("Vertical", 3, 2, 4, 2))
sketch4.addConstraint(Sketcher.Constraint("Vertical", 2, 2, 5, 2))
sketch4.addConstraint(Sketcher.Constraint("Vertical", 11, 2, 12, 2))
sketch4.addConstraint(Sketcher.Constraint("Vertical", 10, 2, 13, 2))
sketch4.addConstraint(Sketcher.Constraint("Equal", 7, 9))
sketch4.addConstraint(Sketcher.Constraint("Equal", 2, 4))
sketch4.addConstraint(Sketcher.Constraint("DistanceY", 0, 2, 0, 1, Q("0.5 in")))
sketch4.addConstraint(Sketcher.Constraint("DistanceY", -1, 1, 4, 2, Q("2 in")))
sketch4.addConstraint(Sketcher.Constraint("DistanceX", 1, 2, 8, 2, Q("3 in")))
sketch4.addConstraint(Sketcher.Constraint("DistanceX", 1, 1, 1, 2, Q("0.25 in")))
sketch4.addConstraint(Sketcher.Constraint("DistanceX", -1, 1, 1, 2, Q("3.5 in")))
sketch4.addConstraint(Sketcher.Constraint("DistanceY", -1, 1, 0, 2, Q("0.25 in")))
pocket3 = doc.addObject("PartDesign::Pocket", "Pocket002")
body.addObject(pocket3)
pocket3.Profile = sketch4
pocket3.Type = "ThroughAll"

doc.recompute()
